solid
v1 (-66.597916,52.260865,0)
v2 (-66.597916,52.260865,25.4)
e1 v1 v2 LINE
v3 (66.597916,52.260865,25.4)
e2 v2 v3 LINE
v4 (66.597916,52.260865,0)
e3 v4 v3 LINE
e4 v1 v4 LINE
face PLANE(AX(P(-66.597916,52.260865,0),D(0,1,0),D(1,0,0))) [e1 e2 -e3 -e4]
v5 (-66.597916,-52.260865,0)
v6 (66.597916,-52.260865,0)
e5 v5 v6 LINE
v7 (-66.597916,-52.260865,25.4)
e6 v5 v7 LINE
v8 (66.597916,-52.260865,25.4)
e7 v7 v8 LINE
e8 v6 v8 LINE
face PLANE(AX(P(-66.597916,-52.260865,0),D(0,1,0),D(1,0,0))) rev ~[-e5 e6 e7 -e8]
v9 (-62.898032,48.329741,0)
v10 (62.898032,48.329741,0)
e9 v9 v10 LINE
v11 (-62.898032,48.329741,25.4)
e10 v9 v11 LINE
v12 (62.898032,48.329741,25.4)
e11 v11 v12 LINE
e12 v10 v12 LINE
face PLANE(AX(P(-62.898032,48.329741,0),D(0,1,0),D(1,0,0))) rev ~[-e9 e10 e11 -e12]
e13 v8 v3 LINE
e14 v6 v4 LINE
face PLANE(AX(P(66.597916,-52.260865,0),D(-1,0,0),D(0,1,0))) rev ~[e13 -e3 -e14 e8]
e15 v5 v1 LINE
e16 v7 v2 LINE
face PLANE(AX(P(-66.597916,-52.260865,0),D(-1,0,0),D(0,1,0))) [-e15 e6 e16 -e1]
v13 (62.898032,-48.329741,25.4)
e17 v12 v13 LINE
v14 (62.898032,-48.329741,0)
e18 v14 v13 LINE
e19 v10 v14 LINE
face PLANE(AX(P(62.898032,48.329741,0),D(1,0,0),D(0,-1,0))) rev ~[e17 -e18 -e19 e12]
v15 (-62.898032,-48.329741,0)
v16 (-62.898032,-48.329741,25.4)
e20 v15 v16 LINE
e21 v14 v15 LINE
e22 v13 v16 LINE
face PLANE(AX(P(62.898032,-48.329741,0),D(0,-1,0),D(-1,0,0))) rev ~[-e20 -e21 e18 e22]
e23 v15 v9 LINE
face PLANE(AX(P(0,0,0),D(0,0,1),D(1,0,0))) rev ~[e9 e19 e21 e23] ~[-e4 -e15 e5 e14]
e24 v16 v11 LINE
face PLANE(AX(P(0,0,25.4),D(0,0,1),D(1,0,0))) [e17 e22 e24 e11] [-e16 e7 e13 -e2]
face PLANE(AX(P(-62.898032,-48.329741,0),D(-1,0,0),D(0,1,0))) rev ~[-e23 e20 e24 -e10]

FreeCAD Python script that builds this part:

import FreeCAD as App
import Part
import Sketcher
from FreeCAD import Vector
Q = App.Units.Quantity


def add_polygon(sketch, points):
    """Adds a closed chain of lines whose ends are joined by coincident constraints."""
    first, n = sketch.GeometryCount, len(points)
    for a, b in zip(points, points[1:] + points[:1]):
        sketch.addGeometry(Part.LineSegment(App.Vector(*a, 0), App.Vector(*b, 0)), False)
    for i in range(n):
        sketch.addConstraint(Sketcher.Constraint("Coincident", first + i, 2, first + (i + 1) % n, 1))

doc = App.newDocument("Part")
body = doc.addObject("PartDesign::Body", "Body")

sketch1 = body.newObject("Sketcher::SketchObject", "Sketch")
sketch1.AttachmentSupport = (doc.getObject("XY_Plane"), [""])
sketch1.MapMode = "FlatFace"
add_polygon(sketch1, [(-66.597916, 52.260865), (-66.597916, -52.260865), (66.597916, -52.260865), (66.597916, 52.260865)])
add_polygon(sketch1, [(-62.898032, -48.329741), (-62.898032, 48.329741), (62.898032, 48.329741), (62.898032, -48.329741)])
sketch1.addConstraint(Sketcher.Constraint("Vertical", 0))
sketch1.addConstraint(Sketcher.Constraint("Horizontal", 1))
sketch1.addConstraint(Sketcher.Constraint("Vertical", 2))
sketch1.addConstraint(Sketcher.Constraint("Horizontal", 3))
sketch1.addConstraint(Sketcher.Constraint("Vertical", 4))
sketch1.addConstraint(Sketcher.Constraint("Horizontal", 5))
sketch1.addConstraint(Sketcher.Constraint("Vertical", 6))
sketch1.addConstraint(Sketcher.Constraint("Horizontal", 7))
sketch1.addConstraint(Sketcher.Constraint("Symmetric", 0, 2, 2, 2, -1, 1))
sketch1.addConstraint(Sketcher.Constraint("Symmetric", 4, 2, 6, 2, -1, 1))
sketch1.addConstraint(Sketcher.Constraint("DistanceX", 1, 1, 1, 2, Q("133.195832 mm")))
sketch1.addConstraint(Sketcher.Constraint("DistanceY", 0, 2, 0, 1, Q("104.52173 mm")))
sketch1.addConstraint(Sketcher.Constraint("DistanceY", 4, 1, 4, 2, Q("96.659482 mm")))
sketch1.addConstraint(Sketcher.Constraint("DistanceX", 5, 1, 5, 2, Q("125.796064 mm")))
pad1 = body.newObject("PartDesign::Pad", "Pad")
pad1.Profile = sketch1
pad1.Length = Q("1 in")

doc.recompute()
